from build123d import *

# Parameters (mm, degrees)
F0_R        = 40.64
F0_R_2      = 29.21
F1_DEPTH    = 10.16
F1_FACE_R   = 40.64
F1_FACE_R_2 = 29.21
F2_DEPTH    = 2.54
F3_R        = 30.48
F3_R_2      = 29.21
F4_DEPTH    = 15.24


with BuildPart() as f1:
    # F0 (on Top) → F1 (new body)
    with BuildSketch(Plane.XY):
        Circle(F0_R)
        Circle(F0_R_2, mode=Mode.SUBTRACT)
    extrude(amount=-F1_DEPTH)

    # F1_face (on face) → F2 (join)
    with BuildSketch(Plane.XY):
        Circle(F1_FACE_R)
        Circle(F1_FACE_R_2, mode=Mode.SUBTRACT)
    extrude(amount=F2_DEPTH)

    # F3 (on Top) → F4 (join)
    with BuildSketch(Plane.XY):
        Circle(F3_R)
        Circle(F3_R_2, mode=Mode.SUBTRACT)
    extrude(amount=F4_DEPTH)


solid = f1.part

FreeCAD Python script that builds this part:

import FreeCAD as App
import Part
import Sketcher
Q = App.Units.Quantity

doc = App.newDocument("Part")
body = doc.addObject("PartDesign::Body", "Body")

# Sketch on XY plane
sketch1 = body.newObject("Sketcher::SketchObject", "Sketch")
sketch1.AttachmentSupport = (doc.getObject("XY_Plane"), [""])
sketch1.MapMode = "FlatFace"
sketch1.addGeometry([
    Part.Circle(App.Vector(0, 0, 0), App.Vector(0, 0, 1), 41),
    Part.Circle(App.Vector(0, 0, 0), App.Vector(0, 0, 1), 29),
], False)
sketch1.addConstraint([
    Sketcher.Constraint("Coincident", 0, 3, -1, 1),
    Sketcher.Constraint("Coincident", 1, 3, -1, 1),
    Sketcher.Constraint("Diameter", 0, Q("3.2 in")),
    Sketcher.Constraint("Diameter", 1, Q("2.3 in")),
])
pad1 = body.newObject("PartDesign::Pad", "Pad")
pad1.Profile = sketch1
pad1.Length = Q("0.4 in")
pad1.Reversed = True

# Sketch on XY plane
sketch2 = body.newObject("Sketcher::SketchObject", "Sketch001")
sketch2.AttachmentSupport = (doc.getObject("XY_Plane"), [""])
sketch2.MapMode = "FlatFace"
sketch2.addGeometry([
    Part.Circle(App.Vector(0, 0, 0), App.Vector(0, 0, 1), 41),
    Part.Circle(App.Vector(0, 0, 0), App.Vector(0, 0, 1), 29),
], False)
sketch2.addConstraint([
    Sketcher.Constraint("Coincident", 0, 3, -1, 1),
    Sketcher.Constraint("Coincident", 1, 3, -1, 1),
    Sketcher.Constraint("Diameter", 0, Q("3.2 in")),
    Sketcher.Constraint("Diameter", 1, Q("2.3 in")),
])
pad2 = body.newObject("PartDesign::Pad", "Pad001")
pad2.Profile = sketch2
pad2.Length = Q("0.1 in")

# Sketch on XY plane
sketch3 = body.newObject("Sketcher::SketchObject", "Sketch002")
sketch3.AttachmentSupport = (doc.getObject("XY_Plane"), [""])
sketch3.MapMode = "FlatFace"
sketch3.addGeometry([
    Part.Circle(App.Vector(0, 0, 0), App.Vector(0, 0, 1), 30),
    Part.Circle(App.Vector(0, 0, 0), App.Vector(0, 0, 1), 29),
], False)
sketch3.addConstraint([
    Sketcher.Constraint("Coincident", 0, 3, -1, 1),
    Sketcher.Constraint("Coincident", 1, 3, -1, 1),
    Sketcher.Constraint("Diameter", 0, Q("2.4 in")),
    Sketcher.Constraint("Diameter", 1, Q("2.3 in")),
])
pad3 = body.newObject("PartDesign::Pad", "Pad002")
pad3.Profile = sketch3
pad3.Length = Q("0.6 in")

doc.recompute()
